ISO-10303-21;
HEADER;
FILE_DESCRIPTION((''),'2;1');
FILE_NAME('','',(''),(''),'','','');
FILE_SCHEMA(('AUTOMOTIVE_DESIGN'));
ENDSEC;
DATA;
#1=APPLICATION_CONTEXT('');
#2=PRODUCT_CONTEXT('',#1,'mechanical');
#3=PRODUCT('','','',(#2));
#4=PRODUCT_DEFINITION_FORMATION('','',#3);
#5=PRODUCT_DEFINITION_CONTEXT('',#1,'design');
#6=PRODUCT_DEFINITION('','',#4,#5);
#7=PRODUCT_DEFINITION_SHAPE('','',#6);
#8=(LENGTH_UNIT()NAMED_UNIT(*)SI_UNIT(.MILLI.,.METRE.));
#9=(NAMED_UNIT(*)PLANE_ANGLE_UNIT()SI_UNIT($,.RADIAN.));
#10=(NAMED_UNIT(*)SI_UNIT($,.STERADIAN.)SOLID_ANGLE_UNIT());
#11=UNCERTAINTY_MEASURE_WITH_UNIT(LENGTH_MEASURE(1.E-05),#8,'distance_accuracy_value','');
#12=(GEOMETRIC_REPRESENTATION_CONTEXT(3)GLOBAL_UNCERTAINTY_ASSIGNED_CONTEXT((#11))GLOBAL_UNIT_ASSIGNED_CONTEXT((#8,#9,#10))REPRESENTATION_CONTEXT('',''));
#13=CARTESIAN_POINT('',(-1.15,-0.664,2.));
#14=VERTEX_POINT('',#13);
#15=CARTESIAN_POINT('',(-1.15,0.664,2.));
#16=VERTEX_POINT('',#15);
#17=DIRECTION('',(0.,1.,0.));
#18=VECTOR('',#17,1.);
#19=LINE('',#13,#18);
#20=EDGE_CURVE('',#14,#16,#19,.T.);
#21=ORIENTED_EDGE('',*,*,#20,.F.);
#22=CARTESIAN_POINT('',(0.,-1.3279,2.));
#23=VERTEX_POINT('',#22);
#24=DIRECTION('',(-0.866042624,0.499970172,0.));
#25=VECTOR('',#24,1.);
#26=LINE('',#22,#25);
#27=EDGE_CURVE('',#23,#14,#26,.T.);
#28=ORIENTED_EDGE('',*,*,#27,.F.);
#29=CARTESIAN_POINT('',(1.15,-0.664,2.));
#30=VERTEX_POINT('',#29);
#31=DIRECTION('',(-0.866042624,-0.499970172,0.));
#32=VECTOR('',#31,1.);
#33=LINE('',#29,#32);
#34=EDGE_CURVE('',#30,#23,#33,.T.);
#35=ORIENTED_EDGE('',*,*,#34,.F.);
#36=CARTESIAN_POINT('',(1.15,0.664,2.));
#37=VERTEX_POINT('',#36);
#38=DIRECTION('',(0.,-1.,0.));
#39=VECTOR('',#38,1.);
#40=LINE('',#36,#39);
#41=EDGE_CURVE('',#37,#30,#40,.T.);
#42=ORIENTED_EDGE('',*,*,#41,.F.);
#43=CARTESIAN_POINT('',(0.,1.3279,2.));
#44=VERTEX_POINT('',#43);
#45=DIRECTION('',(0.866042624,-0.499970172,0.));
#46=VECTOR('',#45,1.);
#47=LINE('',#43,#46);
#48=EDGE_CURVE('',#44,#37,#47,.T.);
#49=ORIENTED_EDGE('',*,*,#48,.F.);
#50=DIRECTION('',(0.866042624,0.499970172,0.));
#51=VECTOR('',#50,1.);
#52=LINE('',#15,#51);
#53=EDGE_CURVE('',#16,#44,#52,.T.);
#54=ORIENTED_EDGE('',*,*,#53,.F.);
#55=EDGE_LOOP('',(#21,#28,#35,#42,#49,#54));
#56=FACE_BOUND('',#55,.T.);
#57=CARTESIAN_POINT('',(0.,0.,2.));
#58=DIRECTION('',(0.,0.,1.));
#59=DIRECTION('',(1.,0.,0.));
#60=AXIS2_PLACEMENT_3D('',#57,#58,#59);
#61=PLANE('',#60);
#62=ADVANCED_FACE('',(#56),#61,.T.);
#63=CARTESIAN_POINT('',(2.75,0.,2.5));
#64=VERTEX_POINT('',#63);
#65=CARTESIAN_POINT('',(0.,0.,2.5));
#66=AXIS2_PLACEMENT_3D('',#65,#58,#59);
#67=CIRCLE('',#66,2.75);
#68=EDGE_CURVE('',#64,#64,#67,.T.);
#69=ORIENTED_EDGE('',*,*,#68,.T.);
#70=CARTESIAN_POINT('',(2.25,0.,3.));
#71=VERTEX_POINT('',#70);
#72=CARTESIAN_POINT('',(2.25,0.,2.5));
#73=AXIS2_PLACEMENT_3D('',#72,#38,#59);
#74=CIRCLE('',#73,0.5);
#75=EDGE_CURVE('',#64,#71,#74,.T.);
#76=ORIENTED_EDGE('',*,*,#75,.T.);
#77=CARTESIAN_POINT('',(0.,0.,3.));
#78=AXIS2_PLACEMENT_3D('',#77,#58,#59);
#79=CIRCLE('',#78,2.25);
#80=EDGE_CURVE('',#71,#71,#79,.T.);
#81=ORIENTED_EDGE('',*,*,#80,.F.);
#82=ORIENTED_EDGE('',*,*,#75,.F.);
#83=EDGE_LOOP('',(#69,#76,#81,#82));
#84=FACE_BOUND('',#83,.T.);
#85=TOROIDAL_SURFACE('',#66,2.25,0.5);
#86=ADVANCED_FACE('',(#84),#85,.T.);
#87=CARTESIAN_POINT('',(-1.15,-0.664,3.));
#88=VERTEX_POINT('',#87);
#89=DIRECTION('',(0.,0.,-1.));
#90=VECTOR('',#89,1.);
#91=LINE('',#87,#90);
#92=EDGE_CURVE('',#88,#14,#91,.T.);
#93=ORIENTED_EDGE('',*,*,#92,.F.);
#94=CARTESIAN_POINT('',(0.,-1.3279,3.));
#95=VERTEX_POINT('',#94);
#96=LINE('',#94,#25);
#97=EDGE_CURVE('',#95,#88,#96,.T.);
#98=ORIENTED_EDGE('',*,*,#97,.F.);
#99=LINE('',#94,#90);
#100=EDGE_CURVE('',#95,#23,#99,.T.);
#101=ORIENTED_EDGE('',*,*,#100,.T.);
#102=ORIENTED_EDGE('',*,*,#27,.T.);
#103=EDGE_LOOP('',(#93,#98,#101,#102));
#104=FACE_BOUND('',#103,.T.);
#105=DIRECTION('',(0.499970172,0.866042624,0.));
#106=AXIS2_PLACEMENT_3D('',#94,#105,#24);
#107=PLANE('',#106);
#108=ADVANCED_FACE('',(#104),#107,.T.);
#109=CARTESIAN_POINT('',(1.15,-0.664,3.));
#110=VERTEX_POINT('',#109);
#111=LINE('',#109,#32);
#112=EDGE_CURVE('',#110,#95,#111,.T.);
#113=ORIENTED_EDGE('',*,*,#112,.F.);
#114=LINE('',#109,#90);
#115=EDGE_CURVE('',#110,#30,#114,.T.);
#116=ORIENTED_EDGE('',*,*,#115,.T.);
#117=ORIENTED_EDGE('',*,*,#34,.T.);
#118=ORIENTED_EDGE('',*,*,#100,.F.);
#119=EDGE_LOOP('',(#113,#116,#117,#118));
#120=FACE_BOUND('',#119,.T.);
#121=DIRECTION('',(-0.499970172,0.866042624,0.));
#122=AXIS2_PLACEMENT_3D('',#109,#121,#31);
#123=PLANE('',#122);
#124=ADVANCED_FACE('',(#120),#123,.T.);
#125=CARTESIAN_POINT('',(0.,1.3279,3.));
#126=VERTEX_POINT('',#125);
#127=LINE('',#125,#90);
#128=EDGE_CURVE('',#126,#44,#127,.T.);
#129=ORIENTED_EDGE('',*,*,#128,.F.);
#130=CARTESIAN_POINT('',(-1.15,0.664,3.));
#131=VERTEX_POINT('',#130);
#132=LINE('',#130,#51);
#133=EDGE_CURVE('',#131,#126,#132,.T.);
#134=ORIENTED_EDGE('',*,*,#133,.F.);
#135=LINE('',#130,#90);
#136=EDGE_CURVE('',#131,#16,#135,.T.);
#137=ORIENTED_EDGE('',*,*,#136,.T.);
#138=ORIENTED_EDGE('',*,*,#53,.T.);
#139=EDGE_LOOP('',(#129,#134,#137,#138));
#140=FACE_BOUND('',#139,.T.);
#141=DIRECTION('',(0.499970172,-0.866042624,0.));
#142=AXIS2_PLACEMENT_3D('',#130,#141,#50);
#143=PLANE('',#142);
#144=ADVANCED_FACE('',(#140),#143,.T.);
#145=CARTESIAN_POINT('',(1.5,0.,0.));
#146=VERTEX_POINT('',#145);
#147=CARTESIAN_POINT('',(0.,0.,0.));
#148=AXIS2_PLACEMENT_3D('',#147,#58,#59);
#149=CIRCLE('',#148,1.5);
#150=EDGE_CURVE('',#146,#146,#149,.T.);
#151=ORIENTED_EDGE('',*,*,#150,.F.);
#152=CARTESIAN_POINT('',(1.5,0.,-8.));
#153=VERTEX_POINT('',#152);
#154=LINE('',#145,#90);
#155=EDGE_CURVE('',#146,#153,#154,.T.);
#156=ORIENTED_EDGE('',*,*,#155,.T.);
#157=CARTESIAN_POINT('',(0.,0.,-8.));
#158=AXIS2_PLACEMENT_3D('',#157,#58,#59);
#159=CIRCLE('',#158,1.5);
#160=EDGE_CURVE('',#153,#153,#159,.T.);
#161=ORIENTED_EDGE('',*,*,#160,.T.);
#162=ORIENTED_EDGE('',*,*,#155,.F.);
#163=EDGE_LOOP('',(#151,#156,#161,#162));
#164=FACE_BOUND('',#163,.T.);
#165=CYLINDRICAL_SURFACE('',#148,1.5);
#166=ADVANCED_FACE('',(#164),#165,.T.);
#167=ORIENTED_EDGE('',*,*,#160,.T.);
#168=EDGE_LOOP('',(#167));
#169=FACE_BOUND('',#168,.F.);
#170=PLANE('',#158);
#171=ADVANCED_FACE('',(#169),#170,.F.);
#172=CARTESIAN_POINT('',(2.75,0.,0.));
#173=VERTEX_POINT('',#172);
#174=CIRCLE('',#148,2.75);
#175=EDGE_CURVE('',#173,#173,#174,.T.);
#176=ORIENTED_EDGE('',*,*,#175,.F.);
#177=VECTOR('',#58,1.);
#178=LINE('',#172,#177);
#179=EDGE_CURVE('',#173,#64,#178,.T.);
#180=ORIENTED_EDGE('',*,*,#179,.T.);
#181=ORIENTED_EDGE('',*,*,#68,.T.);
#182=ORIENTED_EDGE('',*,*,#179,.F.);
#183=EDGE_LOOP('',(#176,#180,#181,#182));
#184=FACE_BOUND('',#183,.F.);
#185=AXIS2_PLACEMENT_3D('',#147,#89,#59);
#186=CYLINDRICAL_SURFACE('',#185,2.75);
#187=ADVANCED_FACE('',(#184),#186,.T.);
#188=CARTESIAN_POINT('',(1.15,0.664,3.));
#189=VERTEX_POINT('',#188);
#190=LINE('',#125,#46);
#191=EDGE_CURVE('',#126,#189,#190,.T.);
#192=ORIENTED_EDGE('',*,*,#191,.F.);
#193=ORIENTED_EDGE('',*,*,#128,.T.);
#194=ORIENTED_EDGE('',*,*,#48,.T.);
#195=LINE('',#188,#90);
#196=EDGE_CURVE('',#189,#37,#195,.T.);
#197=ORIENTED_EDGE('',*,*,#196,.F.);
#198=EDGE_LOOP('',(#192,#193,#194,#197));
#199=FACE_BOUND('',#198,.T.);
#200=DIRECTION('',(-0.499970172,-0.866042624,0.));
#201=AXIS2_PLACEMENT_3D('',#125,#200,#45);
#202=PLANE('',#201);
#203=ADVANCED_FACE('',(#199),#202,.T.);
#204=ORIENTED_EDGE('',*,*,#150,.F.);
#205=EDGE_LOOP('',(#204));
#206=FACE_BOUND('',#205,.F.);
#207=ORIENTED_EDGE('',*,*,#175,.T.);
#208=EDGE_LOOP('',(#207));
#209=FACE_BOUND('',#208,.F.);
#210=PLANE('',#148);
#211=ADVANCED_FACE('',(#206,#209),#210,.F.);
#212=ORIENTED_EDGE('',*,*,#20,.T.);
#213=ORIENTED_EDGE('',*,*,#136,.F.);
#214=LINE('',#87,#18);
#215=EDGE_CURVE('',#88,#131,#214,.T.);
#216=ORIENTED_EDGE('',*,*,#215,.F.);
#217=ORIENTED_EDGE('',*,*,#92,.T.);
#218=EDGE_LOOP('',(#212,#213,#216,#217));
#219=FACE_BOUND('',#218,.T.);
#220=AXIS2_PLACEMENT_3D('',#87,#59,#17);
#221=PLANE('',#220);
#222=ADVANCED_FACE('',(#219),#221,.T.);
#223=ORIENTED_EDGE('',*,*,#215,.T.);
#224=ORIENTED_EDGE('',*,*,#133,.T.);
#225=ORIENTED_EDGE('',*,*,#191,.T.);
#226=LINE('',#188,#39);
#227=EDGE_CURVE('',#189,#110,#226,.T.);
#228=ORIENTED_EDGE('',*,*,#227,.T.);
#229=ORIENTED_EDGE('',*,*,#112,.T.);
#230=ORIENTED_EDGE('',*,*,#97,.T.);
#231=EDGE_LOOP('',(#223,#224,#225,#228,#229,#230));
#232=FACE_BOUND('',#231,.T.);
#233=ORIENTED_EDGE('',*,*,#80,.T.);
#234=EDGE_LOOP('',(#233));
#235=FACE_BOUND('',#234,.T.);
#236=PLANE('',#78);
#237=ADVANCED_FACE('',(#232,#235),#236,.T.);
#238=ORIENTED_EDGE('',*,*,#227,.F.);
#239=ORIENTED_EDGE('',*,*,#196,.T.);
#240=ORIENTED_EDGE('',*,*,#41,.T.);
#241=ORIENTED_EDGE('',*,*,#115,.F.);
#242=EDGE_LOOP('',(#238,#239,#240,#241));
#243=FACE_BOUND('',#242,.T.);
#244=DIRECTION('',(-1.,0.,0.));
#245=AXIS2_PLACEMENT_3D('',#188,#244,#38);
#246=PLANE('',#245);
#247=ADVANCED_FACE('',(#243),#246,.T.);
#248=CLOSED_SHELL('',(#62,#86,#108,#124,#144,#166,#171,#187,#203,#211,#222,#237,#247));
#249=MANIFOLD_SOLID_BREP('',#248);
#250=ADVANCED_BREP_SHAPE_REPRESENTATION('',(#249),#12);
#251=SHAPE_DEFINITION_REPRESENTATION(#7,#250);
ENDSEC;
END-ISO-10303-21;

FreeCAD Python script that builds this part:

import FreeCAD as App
import Part
import Sketcher

V = App.Vector


def edges_at(feature, points):
    """Names of the edges that pass closest to the given points."""
    edges = feature.Shape.Edges
    near = lambda p: min(range(len(edges)), key=lambda i: edges[i].distToShape(Part.Vertex(*p))[0])
    return sorted({f"Edge{near(p) + 1}" for p in points})

doc = App.newDocument("Part")
params = doc.addObject("Spreadsheet::Sheet", "Params")
for row, (alias, value) in enumerate([
    ("sketch1_diameter", "5.5 mm"),
    ("pad1_length", "3 mm"),
    ("sketch2_diameter", "3 mm"),
    ("pad2_length", "8 mm"),
    ("pocket1_length", "1 mm"),
    ("fillet_radius", "0.5 mm"),
], start=1):
    params.set(f"A{row}", alias)
    params.set(f"B{row}", "=" + value)
    params.setAlias(f"B{row}", alias)

body = doc.addObject("PartDesign::Body", "Body")

# Sketch on XY plane
sketch1 = body.newObject("Sketcher::SketchObject", "Sketch")
sketch1.AttachmentSupport = (doc.getObject("XY_Plane"), [""])
sketch1.MapMode = "FlatFace"
sketch1.addGeometry(Part.Circle(V(0, 0, 0), V(0, 0, 1), 2.8), False)
sketch1.addConstraint([
    Sketcher.Constraint("Coincident", 0, 3, -1, 1),
    Sketcher.Constraint("Diameter", 0, 5.5),
])
sketch1.setExpression("Constraints[1]", "Params.sketch1_diameter")
pad1 = body.newObject("PartDesign::Pad", "Pad")
pad1.Profile = sketch1
pad1.setExpression("Length", "Params.pad1_length")

# Sketch on XY plane
sketch2 = body.newObject("Sketcher::SketchObject", "Sketch001")
sketch2.AttachmentSupport = (doc.getObject("XY_Plane"), [""])
sketch2.MapMode = "FlatFace"
sketch2.addGeometry(Part.Circle(V(0, 0, 0), V(0, 0, 1), 1.5), False)
sketch2.addConstraint([
    Sketcher.Constraint("Coincident", 0, 3, -1, 1),
    Sketcher.Constraint("Diameter", 0, 3.0),
])
sketch2.setExpression("Constraints[1]", "Params.sketch2_diameter")
pad2 = body.newObject("PartDesign::Pad", "Pad001")
pad2.Profile = sketch2
pad2.setExpression("Length", "Params.pad2_length")
pad2.Reversed = True

# Sketch on XY plane
sketch3 = body.newObject("Sketcher::SketchObject", "Sketch002")
sketch3.AttachmentSupport = (doc.getObject("XY_Plane"), [""])
sketch3.MapMode = "FlatFace"
sketch3.AttachmentOffset = App.Placement(V(0, 0, 3), App.Rotation())
sketch3.addGeometry([
    Part.LineSegment(V(0, -1.3, 0), V(1.1, -0.7, 0)),  # 0
    Part.LineSegment(V(1.1, -0.7, 0), V(1.1, 0.7, 0)),  # 1
    Part.LineSegment(V(1.1, 0.7, 0), V(0, 1.3, 0)),  # 2
    Part.LineSegment(V(0, 1.3, 0), V(-1.1, 0.7, 0)),  # 3
    Part.LineSegment(V(-1.1, 0.7, 0), V(-1.1, -0.7, 0)),  # 4
    Part.LineSegment(V(-1.1, -0.7, 0), V(0, -1.3, 0)),  # 5
], False)
sketch3.addConstraint([
    Sketcher.Constraint("Coincident", 0, 2, 1, 1),
    Sketcher.Constraint("Coincident", 1, 2, 2, 1),
    Sketcher.Constraint("Coincident", 2, 2, 3, 1),
    Sketcher.Constraint("Coincident", 3, 2, 4, 1),
    Sketcher.Constraint("Coincident", 4, 2, 5, 1),
    Sketcher.Constraint("Coincident", 5, 2, 0, 1),
    Sketcher.Constraint("Vertical", 1),
    Sketcher.Constraint("Vertical", 4),
    Sketcher.Constraint("Symmetric", 0, 2, 3, 2, -1, 1),
    Sketcher.Constraint("Symmetric", 2, 2, 5, 2, -1, 1),
    Sketcher.Constraint("PointOnObject", 2, 2, -2),
    Sketcher.Constraint("Parallel", 2, 5),
    Sketcher.Constraint("Horizontal", 1, 2, 3, 2),
    Sketcher.Constraint("DistanceX", 3, 2, 1, 2, 2.3),
    Sketcher.Constraint("DistanceY", 1, 1, 1, 2, 1.328),
    Sketcher.Constraint("DistanceY", -1, 1, 2, 2, 1.328),
])
pocket1 = body.newObject("PartDesign::Pocket", "Pocket")
pocket1.Profile = sketch3
pocket1.setExpression("Length", "Params.pocket1_length")
doc.recompute()

fillet = body.newObject("PartDesign::Fillet", "Fillet")
fillet.Base = (pocket1, edges_at(pocket1, [(-2.75, 0, 3)]))
fillet.setExpression("Radius", "Params.fillet_radius")

doc.recompute()
